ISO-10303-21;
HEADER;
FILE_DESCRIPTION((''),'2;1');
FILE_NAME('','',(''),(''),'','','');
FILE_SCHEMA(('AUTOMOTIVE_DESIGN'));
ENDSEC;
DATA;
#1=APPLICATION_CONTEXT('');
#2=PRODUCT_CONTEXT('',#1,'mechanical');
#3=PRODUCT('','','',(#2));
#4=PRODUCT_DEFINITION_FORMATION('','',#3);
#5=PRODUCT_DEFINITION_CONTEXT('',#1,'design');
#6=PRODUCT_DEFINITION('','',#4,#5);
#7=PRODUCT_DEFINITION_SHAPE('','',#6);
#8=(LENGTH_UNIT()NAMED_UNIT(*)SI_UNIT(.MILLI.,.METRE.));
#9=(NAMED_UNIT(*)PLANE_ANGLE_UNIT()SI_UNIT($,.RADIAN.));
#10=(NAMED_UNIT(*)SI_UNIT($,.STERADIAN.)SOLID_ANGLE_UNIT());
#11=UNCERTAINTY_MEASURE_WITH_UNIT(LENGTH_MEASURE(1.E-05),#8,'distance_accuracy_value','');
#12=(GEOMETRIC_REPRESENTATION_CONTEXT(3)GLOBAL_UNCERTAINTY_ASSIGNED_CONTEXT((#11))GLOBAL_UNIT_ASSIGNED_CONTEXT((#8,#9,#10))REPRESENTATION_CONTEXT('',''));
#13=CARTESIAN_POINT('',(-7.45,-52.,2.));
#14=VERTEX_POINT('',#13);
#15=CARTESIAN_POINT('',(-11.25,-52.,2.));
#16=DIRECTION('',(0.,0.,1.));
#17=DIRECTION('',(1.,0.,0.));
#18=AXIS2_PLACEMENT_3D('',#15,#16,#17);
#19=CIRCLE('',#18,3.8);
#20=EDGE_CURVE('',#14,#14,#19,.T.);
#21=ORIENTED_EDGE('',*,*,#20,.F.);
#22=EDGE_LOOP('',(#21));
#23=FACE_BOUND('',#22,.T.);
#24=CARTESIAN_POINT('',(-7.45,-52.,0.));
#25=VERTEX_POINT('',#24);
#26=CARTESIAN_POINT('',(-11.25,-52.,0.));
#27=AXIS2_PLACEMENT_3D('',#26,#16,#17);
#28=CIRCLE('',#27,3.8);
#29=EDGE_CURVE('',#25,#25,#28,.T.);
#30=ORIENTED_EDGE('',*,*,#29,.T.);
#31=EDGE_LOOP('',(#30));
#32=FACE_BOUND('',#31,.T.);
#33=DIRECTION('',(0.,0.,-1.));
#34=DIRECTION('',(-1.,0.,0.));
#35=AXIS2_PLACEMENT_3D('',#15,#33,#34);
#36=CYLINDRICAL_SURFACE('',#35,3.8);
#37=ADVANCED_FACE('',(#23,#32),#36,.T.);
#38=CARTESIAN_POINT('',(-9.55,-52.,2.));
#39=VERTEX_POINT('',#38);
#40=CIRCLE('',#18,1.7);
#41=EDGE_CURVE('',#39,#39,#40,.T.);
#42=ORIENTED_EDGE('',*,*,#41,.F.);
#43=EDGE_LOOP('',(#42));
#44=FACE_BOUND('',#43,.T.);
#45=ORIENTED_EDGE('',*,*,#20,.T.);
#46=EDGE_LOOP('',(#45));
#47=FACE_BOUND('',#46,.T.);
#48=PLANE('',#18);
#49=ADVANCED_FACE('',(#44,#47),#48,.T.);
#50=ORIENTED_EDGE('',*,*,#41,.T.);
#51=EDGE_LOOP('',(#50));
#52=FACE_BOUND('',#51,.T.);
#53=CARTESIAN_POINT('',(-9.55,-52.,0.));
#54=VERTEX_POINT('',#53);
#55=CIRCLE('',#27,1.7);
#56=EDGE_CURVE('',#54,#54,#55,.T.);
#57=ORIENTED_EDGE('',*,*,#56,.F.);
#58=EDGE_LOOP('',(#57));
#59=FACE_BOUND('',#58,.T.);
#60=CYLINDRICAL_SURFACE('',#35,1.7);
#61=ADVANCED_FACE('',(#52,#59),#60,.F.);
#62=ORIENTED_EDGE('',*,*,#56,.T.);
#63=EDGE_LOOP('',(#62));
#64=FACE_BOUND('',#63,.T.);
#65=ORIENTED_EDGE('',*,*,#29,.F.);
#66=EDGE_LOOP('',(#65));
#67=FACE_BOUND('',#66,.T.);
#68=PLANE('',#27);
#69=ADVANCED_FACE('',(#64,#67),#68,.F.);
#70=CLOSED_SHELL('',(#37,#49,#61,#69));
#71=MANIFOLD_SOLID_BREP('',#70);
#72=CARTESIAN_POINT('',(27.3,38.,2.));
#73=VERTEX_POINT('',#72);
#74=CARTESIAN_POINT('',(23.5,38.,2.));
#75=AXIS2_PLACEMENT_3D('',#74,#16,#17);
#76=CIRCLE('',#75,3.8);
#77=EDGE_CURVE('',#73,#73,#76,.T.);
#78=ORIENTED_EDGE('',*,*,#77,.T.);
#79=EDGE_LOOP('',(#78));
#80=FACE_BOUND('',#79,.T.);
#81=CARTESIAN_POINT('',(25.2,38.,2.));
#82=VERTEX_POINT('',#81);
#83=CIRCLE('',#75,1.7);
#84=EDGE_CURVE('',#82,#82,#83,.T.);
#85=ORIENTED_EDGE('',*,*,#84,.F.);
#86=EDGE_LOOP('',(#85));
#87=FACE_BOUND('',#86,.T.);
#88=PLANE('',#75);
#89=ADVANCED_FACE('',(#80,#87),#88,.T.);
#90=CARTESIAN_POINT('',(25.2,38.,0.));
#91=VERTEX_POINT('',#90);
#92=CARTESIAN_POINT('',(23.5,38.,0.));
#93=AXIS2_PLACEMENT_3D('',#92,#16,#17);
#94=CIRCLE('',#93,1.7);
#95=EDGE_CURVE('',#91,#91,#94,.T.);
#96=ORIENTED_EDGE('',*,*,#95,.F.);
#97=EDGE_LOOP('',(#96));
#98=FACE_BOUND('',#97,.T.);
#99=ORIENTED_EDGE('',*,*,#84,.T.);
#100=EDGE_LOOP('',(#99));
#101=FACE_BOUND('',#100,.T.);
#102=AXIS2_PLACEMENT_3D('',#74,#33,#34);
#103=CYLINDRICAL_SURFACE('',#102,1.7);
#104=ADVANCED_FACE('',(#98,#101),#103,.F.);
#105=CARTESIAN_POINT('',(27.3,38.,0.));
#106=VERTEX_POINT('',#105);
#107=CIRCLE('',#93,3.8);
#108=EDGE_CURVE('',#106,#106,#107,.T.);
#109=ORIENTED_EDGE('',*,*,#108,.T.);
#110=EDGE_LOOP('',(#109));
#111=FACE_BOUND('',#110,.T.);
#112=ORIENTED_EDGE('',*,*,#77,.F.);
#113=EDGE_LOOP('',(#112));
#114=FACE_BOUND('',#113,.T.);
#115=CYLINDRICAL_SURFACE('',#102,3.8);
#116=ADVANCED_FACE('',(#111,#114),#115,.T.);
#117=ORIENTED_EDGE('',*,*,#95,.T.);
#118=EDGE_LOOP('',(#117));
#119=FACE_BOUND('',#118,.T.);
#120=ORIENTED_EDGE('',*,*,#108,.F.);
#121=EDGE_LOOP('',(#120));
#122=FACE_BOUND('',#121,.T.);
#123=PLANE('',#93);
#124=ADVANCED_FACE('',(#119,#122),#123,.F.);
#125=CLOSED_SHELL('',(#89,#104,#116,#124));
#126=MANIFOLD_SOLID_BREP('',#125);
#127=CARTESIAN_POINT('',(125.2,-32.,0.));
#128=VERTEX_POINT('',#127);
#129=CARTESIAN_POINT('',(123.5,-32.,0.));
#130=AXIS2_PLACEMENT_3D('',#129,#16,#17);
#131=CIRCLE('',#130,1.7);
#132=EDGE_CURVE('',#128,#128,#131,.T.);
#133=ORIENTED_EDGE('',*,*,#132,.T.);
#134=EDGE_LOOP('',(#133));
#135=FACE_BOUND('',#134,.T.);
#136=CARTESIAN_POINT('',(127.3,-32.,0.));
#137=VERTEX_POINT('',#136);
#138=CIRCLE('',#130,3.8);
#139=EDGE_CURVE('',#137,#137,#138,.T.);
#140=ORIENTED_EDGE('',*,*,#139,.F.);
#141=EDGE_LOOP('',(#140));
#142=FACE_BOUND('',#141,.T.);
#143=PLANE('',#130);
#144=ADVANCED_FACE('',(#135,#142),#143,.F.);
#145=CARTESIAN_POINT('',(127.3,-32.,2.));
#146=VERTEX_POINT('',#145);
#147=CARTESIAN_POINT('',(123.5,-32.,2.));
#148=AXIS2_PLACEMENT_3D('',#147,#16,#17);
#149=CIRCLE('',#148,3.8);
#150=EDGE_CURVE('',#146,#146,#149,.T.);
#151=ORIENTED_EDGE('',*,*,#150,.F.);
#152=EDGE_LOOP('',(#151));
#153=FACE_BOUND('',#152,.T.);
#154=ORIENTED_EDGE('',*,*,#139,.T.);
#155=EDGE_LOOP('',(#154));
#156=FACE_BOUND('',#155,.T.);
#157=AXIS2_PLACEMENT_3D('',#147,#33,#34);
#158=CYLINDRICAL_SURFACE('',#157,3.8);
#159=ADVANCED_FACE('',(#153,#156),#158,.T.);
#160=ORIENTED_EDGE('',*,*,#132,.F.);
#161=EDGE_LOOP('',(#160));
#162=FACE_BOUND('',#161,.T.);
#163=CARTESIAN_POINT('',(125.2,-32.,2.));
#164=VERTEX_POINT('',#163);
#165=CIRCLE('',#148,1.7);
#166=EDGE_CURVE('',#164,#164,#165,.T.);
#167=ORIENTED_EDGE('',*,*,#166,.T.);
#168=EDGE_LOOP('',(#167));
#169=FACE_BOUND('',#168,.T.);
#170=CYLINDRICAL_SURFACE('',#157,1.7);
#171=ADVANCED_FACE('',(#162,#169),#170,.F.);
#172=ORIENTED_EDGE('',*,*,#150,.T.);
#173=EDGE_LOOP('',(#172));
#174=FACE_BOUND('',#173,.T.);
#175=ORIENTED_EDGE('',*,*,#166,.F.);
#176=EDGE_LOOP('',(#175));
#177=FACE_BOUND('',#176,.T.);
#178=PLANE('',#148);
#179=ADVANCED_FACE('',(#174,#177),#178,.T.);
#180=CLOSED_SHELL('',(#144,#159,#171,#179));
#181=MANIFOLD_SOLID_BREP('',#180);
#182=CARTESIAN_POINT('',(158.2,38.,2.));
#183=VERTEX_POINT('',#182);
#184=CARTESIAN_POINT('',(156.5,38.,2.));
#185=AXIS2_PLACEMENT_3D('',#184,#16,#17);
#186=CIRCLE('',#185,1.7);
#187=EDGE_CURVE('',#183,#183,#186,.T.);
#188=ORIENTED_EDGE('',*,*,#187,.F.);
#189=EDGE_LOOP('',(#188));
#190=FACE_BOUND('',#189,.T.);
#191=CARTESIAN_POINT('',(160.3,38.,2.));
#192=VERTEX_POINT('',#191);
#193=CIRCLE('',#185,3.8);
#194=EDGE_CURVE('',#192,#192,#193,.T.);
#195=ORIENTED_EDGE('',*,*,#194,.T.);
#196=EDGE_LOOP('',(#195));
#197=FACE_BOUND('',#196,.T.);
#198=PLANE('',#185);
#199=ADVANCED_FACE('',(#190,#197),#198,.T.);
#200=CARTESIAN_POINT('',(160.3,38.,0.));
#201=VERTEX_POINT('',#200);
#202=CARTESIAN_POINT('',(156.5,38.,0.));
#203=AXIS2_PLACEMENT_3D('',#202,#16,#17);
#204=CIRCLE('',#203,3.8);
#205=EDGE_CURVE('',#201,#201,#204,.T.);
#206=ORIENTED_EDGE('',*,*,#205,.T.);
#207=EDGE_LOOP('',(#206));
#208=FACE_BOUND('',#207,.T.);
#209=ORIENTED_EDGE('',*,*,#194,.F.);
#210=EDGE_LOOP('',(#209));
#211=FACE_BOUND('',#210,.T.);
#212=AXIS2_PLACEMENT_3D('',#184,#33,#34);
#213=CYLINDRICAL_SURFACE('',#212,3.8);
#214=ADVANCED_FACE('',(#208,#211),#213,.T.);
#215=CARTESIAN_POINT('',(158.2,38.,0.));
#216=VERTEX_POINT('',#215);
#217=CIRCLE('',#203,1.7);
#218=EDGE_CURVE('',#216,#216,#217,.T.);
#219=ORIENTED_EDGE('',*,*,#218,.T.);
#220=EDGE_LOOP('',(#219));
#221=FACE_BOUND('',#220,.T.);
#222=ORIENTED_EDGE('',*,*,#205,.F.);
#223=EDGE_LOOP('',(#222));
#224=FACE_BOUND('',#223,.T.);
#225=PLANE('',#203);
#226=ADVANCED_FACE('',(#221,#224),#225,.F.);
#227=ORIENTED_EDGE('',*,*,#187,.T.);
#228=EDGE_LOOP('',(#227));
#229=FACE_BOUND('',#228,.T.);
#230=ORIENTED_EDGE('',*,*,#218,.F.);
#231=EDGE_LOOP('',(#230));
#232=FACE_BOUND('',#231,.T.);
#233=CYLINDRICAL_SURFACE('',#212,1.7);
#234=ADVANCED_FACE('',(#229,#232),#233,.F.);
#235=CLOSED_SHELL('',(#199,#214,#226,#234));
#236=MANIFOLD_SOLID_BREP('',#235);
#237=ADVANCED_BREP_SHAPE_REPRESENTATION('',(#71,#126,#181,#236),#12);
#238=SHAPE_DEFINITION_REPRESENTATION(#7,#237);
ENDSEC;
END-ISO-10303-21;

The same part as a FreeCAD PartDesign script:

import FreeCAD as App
import Part
import Sketcher
Q = App.Units.Quantity

doc = App.newDocument("Part")
body = doc.addObject("PartDesign::Body", "Body")

# Sketch on XY plane
sketch1 = body.newObject("Sketcher::SketchObject", "Sketch")
sketch1.AttachmentSupport = (doc.getObject("XY_Plane"), [""])
sketch1.MapMode = "FlatFace"
sketch1.addGeometry([
    Part.Circle(App.Vector(23.5, 38, 0), App.Vector(0, 0, 1), 3.8),
    Part.Circle(App.Vector(23.5, 38, 0), App.Vector(0, 0, 1), 1.7),
], False)
sketch1.addConstraint([
    Sketcher.Constraint("Coincident", 1, 3, 0, 3),
    Sketcher.Constraint("Diameter", 0, Q("7.6 mm")),
    Sketcher.Constraint("Diameter", 1, Q("3.4 mm")),
    Sketcher.Constraint("DistanceY", -1, 1, 0, 3, Q("38 mm")),
    Sketcher.Constraint("DistanceX", -1, 1, 0, 3, Q("23.5 mm")),
])
pad1 = body.newObject("PartDesign::Pad", "Pad")
pad1.Profile = sketch1
pad1.Length = 2
body2 = doc.addObject("PartDesign::Body", "Body001")

# Sketch on XY plane
sketch2 = body2.newObject("Sketcher::SketchObject", "Sketch001")
sketch2.AttachmentSupport = (doc.getObject("XY_Plane001"), [""])
sketch2.MapMode = "FlatFace"
sketch2.addGeometry([
    Part.Circle(App.Vector(156.5, 38, 0), App.Vector(0, 0, 1), 3.8),
    Part.Circle(App.Vector(156.5, 38, 0), App.Vector(0, 0, 1), 1.7),
], False)
sketch2.addConstraint([
    Sketcher.Constraint("Coincident", 1, 3, 0, 3),
    Sketcher.Constraint("Diameter", 0, Q("7.6 mm")),
    Sketcher.Constraint("Diameter", 1, Q("3.4 mm")),
    Sketcher.Constraint("DistanceY", -1, 1, 0, 3, Q("38 mm")),
    Sketcher.Constraint("DistanceX", -1, 1, 0, 3, Q("156.5 mm")),
])
pad2 = body2.newObject("PartDesign::Pad", "Pad001")
pad2.Profile = sketch2
pad2.Length = 2
body3 = doc.addObject("PartDesign::Body", "Body002")

# Sketch on XY plane
sketch3 = body3.newObject("Sketcher::SketchObject", "Sketch002")
sketch3.AttachmentSupport = (doc.getObject("XY_Plane002"), [""])
sketch3.MapMode = "FlatFace"
sketch3.addGeometry([
    Part.Circle(App.Vector(123.5, -32, 0), App.Vector(0, 0, 1), 3.8),
    Part.Circle(App.Vector(123.5, -32, 0), App.Vector(0, 0, 1), 1.7),
], False)
sketch3.addConstraint([
    Sketcher.Constraint("Coincident", 1, 3, 0, 3),
    Sketcher.Constraint("Diameter", 0, Q("7.6 mm")),
    Sketcher.Constraint("Diameter", 1, Q("3.4 mm")),
    Sketcher.Constraint("DistanceY", 0, 3, -1, 1, Q("32 mm")),
    Sketcher.Constraint("DistanceX", -1, 1, 0, 3, Q("123.5 mm")),
])
pad3 = body3.newObject("PartDesign::Pad", "Pad002")
pad3.Profile = sketch3
pad3.Length = 2
body4 = doc.addObject("PartDesign::Body", "Body003")

# Sketch on XY plane
sketch4 = body4.newObject("Sketcher::SketchObject", "Sketch003")
sketch4.AttachmentSupport = (doc.getObject("XY_Plane003"), [""])
sketch4.MapMode = "FlatFace"
sketch4.addGeometry([
    Part.Circle(App.Vector(-11.2, -52, 0), App.Vector(0, 0, 1), 3.8),
    Part.Circle(App.Vector(-11.2, -52, 0), App.Vector(0, 0, 1), 1.7),
], False)
sketch4.addConstraint([
    Sketcher.Constraint("Coincident", 1, 3, 0, 3),
    Sketcher.Constraint("Diameter", 0, Q("7.6 mm")),
    Sketcher.Constraint("Diameter", 1, Q("3.4 mm")),
    Sketcher.Constraint("DistanceY", 0, 3, -1, 1, Q("52 mm")),
    Sketcher.Constraint("DistanceX", 0, 3, -1, 1, Q("11.25 mm")),
])
pad4 = body4.newObject("PartDesign::Pad", "Pad003")
pad4.Profile = sketch4
pad4.Length = 2

doc.recompute()
